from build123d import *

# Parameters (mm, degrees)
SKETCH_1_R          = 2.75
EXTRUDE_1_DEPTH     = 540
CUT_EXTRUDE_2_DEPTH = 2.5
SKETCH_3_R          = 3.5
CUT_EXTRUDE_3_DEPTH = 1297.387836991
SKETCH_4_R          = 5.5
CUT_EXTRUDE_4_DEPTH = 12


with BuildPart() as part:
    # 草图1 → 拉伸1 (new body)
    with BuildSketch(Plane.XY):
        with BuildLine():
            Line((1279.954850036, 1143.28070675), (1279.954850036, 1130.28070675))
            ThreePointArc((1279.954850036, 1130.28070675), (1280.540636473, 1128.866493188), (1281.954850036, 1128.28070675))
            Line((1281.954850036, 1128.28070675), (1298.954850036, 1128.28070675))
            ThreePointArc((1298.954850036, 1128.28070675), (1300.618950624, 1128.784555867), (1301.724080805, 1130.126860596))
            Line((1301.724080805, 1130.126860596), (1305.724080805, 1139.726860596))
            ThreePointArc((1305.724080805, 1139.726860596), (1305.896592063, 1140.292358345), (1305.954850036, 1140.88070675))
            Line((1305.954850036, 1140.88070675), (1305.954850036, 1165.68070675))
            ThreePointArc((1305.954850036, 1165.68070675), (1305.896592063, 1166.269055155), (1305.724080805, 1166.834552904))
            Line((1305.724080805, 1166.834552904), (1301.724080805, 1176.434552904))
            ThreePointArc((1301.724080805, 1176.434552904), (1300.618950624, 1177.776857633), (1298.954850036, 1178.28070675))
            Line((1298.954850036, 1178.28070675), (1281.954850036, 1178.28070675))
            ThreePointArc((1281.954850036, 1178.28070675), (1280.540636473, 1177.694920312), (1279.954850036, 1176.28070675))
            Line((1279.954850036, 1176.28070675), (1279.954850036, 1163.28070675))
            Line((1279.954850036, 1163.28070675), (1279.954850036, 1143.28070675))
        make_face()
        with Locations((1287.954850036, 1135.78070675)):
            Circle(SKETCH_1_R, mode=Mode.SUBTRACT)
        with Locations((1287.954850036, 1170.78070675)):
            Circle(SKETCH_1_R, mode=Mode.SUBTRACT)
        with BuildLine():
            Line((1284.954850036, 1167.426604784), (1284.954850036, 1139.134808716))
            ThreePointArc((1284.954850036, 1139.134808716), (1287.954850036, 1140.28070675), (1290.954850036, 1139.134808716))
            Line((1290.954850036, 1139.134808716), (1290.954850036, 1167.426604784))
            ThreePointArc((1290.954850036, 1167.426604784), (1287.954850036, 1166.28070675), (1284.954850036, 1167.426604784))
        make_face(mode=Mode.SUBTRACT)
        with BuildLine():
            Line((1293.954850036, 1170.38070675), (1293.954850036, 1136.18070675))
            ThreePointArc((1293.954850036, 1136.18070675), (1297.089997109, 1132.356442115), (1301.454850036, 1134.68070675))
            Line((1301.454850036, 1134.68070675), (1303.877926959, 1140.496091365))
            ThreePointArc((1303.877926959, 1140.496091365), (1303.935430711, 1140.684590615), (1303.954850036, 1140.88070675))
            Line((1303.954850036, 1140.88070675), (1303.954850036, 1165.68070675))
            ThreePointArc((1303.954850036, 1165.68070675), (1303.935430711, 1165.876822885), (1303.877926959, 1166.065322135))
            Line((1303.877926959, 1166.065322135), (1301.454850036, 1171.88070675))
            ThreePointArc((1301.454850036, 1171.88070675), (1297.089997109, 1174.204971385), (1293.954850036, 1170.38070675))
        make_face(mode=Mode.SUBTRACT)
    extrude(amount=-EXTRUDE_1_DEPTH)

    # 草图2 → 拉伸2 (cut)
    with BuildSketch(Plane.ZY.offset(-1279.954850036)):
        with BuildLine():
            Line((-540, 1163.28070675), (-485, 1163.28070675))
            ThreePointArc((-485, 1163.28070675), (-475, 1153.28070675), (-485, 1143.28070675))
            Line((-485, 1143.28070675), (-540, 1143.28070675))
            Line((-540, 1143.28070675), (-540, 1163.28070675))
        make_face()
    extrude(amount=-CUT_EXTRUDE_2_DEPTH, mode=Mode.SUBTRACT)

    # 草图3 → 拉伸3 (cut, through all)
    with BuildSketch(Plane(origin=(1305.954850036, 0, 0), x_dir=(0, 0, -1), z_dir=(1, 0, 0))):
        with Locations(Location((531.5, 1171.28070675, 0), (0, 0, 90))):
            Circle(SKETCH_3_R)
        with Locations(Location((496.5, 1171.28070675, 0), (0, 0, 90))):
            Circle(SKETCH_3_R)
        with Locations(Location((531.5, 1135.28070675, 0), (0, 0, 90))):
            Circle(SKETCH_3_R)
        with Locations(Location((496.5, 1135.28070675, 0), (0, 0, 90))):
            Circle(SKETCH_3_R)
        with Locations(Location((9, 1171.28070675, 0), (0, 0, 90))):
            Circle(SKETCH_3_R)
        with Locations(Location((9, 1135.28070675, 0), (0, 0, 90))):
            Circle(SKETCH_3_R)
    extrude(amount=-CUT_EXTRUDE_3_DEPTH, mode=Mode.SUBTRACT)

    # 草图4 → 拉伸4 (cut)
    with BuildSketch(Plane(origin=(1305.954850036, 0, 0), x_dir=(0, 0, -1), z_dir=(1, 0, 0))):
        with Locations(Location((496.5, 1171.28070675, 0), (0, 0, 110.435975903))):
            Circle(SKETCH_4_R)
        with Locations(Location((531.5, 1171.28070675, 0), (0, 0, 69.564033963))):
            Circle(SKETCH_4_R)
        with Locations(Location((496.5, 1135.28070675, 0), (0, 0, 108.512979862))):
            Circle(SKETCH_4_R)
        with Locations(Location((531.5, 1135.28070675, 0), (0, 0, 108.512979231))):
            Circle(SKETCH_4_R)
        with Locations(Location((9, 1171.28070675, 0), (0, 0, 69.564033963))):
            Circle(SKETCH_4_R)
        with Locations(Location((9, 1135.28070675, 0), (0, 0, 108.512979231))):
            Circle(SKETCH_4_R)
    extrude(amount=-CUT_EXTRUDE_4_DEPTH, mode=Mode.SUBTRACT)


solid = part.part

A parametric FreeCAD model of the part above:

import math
import FreeCAD as App
import Part
import Sketcher

V = App.Vector

doc = App.newDocument("Part")
body = doc.addObject("PartDesign::Body", "Body")

# Sketch on XY plane
sketch1 = doc.addObject("Sketcher::SketchObject", "Sketch")
body.addObject(sketch1)
sketch1.AttachmentSupport = (doc.XY_Plane, [""])
sketch1.MapMode = "FlatFace"
sketch1.addGeometry(Part.ArcOfCircle(Part.Circle(V(1281.95485, 1130.280707, 0), V(0, 0, 1), 2), math.radians(180), math.radians(270)), False)
sketch1.addGeometry(Part.LineSegment(V(1281.95485, 1128.280707, 0), V(1298.95485, 1128.280707, 0)), False)
sketch1.addGeometry(Part.ArcOfCircle(Part.Circle(V(1298.95485, 1131.280707, 0), V(0, 0, 1), 3), math.radians(-90), math.radians(-22.619865)), False)
sketch1.addGeometry(Part.LineSegment(V(1301.724081, 1130.126861, 0), V(1305.724081, 1139.726861, 0)), False)
sketch1.addGeometry(Part.ArcOfCircle(Part.Circle(V(1302.95485, 1140.880707, 0), V(0, 0, 1), 3), math.radians(-22.619865), math.radians(0)), False)
sketch1.addGeometry(Part.LineSegment(V(1305.95485, 1140.880707, 0), V(1305.95485, 1165.680707, 0)), False)
sketch1.addGeometry(Part.ArcOfCircle(Part.Circle(V(1302.95485, 1165.680707, 0), V(0, 0, 1), 3), math.radians(0), math.radians(22.619865)), False)
sketch1.addGeometry(Part.LineSegment(V(1305.724081, 1166.834553, 0), V(1301.724081, 1176.434553, 0)), False)
sketch1.addGeometry(Part.ArcOfCircle(Part.Circle(V(1298.95485, 1175.280707, 0), V(0, 0, 1), 3), math.radians(22.619865), math.radians(90)), False)
sketch1.addGeometry(Part.LineSegment(V(1298.95485, 1178.280707, 0), V(1281.95485, 1178.280707, 0)), False)
sketch1.addGeometry(Part.ArcOfCircle(Part.Circle(V(1281.95485, 1176.280707, 0), V(0, 0, 1), 2), math.radians(90), math.radians(180)), False)
sketch1.addGeometry(Part.LineSegment(V(1279.95485, 1176.280707, 0), V(1279.95485, 1130.280707, 0)), False)
sketch1.addGeometry(Part.Circle(V(1287.95485, 1135.780707, 0), V(0, 0, 1), 2.75), False)
sketch1.addGeometry(Part.LineSegment(V(1284.95485, 1139.134809, 0), V(1284.95485, 1167.426605, 0)), False)
sketch1.addGeometry(Part.ArcOfCircle(Part.Circle(V(1287.95485, 1170.780707, 0), V(0, 0, 1), 4.5), math.radians(-131.810315), math.radians(-48.189685)), False)
sketch1.addGeometry(Part.LineSegment(V(1290.95485, 1167.426605, 0), V(1290.95485, 1139.134809, 0)), False)
sketch1.addGeometry(Part.ArcOfCircle(Part.Circle(V(1287.95485, 1135.780707, 0), V(0, 0, 1), 4.5), math.radians(48.189685), math.radians(131.810315)), False)
sketch1.addGeometry(Part.Circle(V(1287.95485, 1170.780707, 0), V(0, 0, 1), 2.75), False)
sketch1.addGeometry(Part.LineSegment(V(1293.95485, 1136.180707, 0), V(1293.95485, 1170.380707, 0)), False)
sketch1.addGeometry(Part.ArcOfCircle(Part.Circle(V(1297.85485, 1170.380707, 0), V(0, 0, 1), 3.9), math.radians(22.619865), math.radians(180)), False)
sketch1.addGeometry(Part.LineSegment(V(1301.45485, 1171.880707, 0), V(1303.877927, 1166.065322, 0)), False)
sketch1.addGeometry(Part.ArcOfCircle(Part.Circle(V(1302.95485, 1165.680707, 0), V(0, 0, 1), 1), math.radians(0), math.radians(22.619865)), False)
sketch1.addGeometry(Part.LineSegment(V(1303.95485, 1165.680707, 0), V(1303.95485, 1140.880707, 0)), False)
sketch1.addGeometry(Part.ArcOfCircle(Part.Circle(V(1302.95485, 1140.880707, 0), V(0, 0, 1), 1), math.radians(-22.619865), math.radians(0)), False)
sketch1.addGeometry(Part.LineSegment(V(1303.877927, 1140.496091, 0), V(1301.45485, 1134.680707, 0)), False)
sketch1.addGeometry(Part.ArcOfCircle(Part.Circle(V(1297.85485, 1136.180707, 0), V(0, 0, 1), 3.9), math.radians(180), math.radians(337.380135)), False)
sketch1.addConstraint(Sketcher.Constraint("Tangent", 0, 2, 1, 1))
sketch1.addConstraint(Sketcher.Constraint("Tangent", 1, 2, 2, 1))
sketch1.addConstraint(Sketcher.Constraint("Tangent", 2, 2, 3, 1))
sketch1.addConstraint(Sketcher.Constraint("Tangent", 3, 2, 4, 1))
sketch1.addConstraint(Sketcher.Constraint("Tangent", 4, 2, 5, 1))
sketch1.addConstraint(Sketcher.Constraint("Tangent", 5, 2, 6, 1))
sketch1.addConstraint(Sketcher.Constraint("Tangent", 6, 2, 7, 1))
sketch1.addConstraint(Sketcher.Constraint("Tangent", 7, 2, 8, 1))
sketch1.addConstraint(Sketcher.Constraint("Tangent", 8, 2, 9, 1))
sketch1.addConstraint(Sketcher.Constraint("Tangent", 9, 2, 10, 1))
sketch1.addConstraint(Sketcher.Constraint("Tangent", 10, 2, 11, 1))
sketch1.addConstraint(Sketcher.Constraint("Tangent", 11, 2, 0, 1))
sketch1.addConstraint(Sketcher.Constraint("Coincident", 13, 2, 14, 1))
sketch1.addConstraint(Sketcher.Constraint("Coincident", 14, 2, 15, 1))
sketch1.addConstraint(Sketcher.Constraint("Coincident", 15, 2, 16, 1))
sketch1.addConstraint(Sketcher.Constraint("Coincident", 16, 2, 13, 1))
sketch1.addConstraint(Sketcher.Constraint("Tangent", 18, 2, 19, 2))
sketch1.addConstraint(Sketcher.Constraint("Tangent", 19, 1, 20, 1))
sketch1.addConstraint(Sketcher.Constraint("Tangent", 20, 2, 21, 2))
sketch1.addConstraint(Sketcher.Constraint("Tangent", 21, 1, 22, 1))
sketch1.addConstraint(Sketcher.Constraint("Tangent", 22, 2, 23, 2))
sketch1.addConstraint(Sketcher.Constraint("Tangent", 23, 1, 24, 1))
sketch1.addConstraint(Sketcher.Constraint("Tangent", 24, 2, 25, 2))
sketch1.addConstraint(Sketcher.Constraint("Tangent", 25, 1, 18, 1))
sketch1.addConstraint(Sketcher.Constraint("Horizontal", 1))
sketch1.addConstraint(Sketcher.Constraint("Vertical", 5))
sketch1.addConstraint(Sketcher.Constraint("Horizontal", 9))
sketch1.addConstraint(Sketcher.Constraint("Vertical", 11))
sketch1.addConstraint(Sketcher.Constraint("Vertical", 13))
sketch1.addConstraint(Sketcher.Constraint("Vertical", 15))
sketch1.addConstraint(Sketcher.Constraint("Vertical", 18))
sketch1.addConstraint(Sketcher.Constraint("Vertical", 22))
sketch1.addConstraint(Sketcher.Constraint("Coincident", 16, 3, 12, 3))
sketch1.addConstraint(Sketcher.Constraint("Coincident", 17, 3, 14, 3))
sketch1.addConstraint(Sketcher.Constraint("Coincident", 21, 3, 6, 3))
sketch1.addConstraint(Sketcher.Constraint("Coincident", 23, 3, 4, 3))
sketch1.addConstraint(Sketcher.Constraint("Equal", 2, 4))
sketch1.addConstraint(Sketcher.Constraint("Equal", 4, 6))
sketch1.addConstraint(Sketcher.Constraint("Equal", 6, 8))
sketch1.addConstraint(Sketcher.Constraint("Equal", 0, 10))
sketch1.addConstraint(Sketcher.Constraint("Equal", 14, 16))
sketch1.addConstraint(Sketcher.Constraint("Equal", 12, 17))
sketch1.addConstraint(Sketcher.Constraint("Equal", 19, 25))
sketch1.addConstraint(Sketcher.Constraint("Parallel", 7, 20))
sketch1.addConstraint(Sketcher.Constraint("Parallel", 3, 24))
sketch1.addConstraint(Sketcher.Constraint("Horizontal", 13, 2, 14, 2))
sketch1.addConstraint(Sketcher.Constraint("Horizontal", 15, 2, 16, 2))
sketch1.addConstraint(Sketcher.Constraint("Vertical", 2, 3, 8, 3))
sketch1.addConstraint(Sketcher.Constraint("Vertical", 3, 2, 6, 2))
sketch1.addConstraint(Sketcher.Constraint("Radius", 0, 2.0))
sketch1.addConstraint(Sketcher.Constraint("Radius", 2, 3.0))
sketch1.addConstraint(Sketcher.Constraint("Radius", 21, 1.0))
sketch1.addConstraint(Sketcher.Constraint("Diameter", 12, 5.5))
sketch1.addConstraint(Sketcher.Constraint("Radius", 14, 4.5))
sketch1.addConstraint(Sketcher.Constraint("Radius", 19, 3.9))
sketch1.addConstraint(Sketcher.Constraint("DistanceX", 1, 1, 1, 2, 17.0))
sketch1.addConstraint(Sketcher.Constraint("DistanceY", 11, 2, 11, 1, 46.0))
sketch1.addConstraint(Sketcher.Constraint("DistanceY", 5, 1, 5, 2, 24.8))
sketch1.addConstraint(Sketcher.Constraint("DistanceY", 18, 1, 18, 2, 34.2))
sketch1.addConstraint(Sketcher.Constraint("DistanceX", 2, 3, 4, 3, 4.0))
sketch1.addConstraint(Sketcher.Constraint("DistanceX", 0, 3, 12, 3, 6.0))
sketch1.addConstraint(Sketcher.Constraint("DistanceY", 12, 3, 14, 3, 35.0))
sketch1.addConstraint(Sketcher.Constraint("DistanceX", 13, 2, 14, 3, 3.0))
sketch1.addConstraint(Sketcher.Constraint("DistanceY", 0, 3, 12, 3, 5.5))
sketch1.addConstraint(Sketcher.Constraint("DistanceX", -1, 1, 0, 3, 1281.95485))
sketch1.addConstraint(Sketcher.Constraint("DistanceY", -1, 1, 2, 2, 1130.126861))
pad1 = doc.addObject("PartDesign::Pad", "Pad")
body.addObject(pad1)
pad1.Profile = sketch1
pad1.Length = 540
pad1.Reversed = True

# Sketch on YZ plane
sketch2 = doc.addObject("Sketcher::SketchObject", "Sketch001")
body.addObject(sketch2)
sketch2.AttachmentSupport = (doc.YZ_Plane, [""])
sketch2.MapMode = "FlatFace"
sketch2.AttachmentOffset = App.Placement(V(0, 0, 1279.95485), App.Rotation())
sketch2.addGeometry(Part.LineSegment(V(1163.280707, -485, 0), V(1163.280707, -540, 0)), False)
sketch2.addGeometry(Part.LineSegment(V(1163.280707, -540, 0), V(1143.280707, -540, 0)), False)
sketch2.addGeometry(Part.LineSegment(V(1143.280707, -540, 0), V(1143.280707, -485, 0)), False)
sketch2.addGeometry(Part.ArcOfCircle(Part.Circle(V(1153.280707, -485, 0), V(0, 0, 1), 10), math.radians(0), math.radians(180)), False)
sketch2.addConstraint(Sketcher.Constraint("Coincident", 0, 2, 1, 1))
sketch2.addConstraint(Sketcher.Constraint("Coincident", 1, 2, 2, 1))
sketch2.addConstraint(Sketcher.Constraint("Tangent", 2, 2, 3, 2))
sketch2.addConstraint(Sketcher.Constraint("Tangent", 3, 1, 0, 1))
sketch2.addConstraint(Sketcher.Constraint("Vertical", 0))
sketch2.addConstraint(Sketcher.Constraint("Horizontal", 1))
sketch2.addConstraint(Sketcher.Constraint("Vertical", 2))
sketch2.addConstraint(Sketcher.Constraint("Radius", 3, 10.0))
sketch2.addConstraint(Sketcher.Constraint("DistanceY", 0, 2, 0, 1, 55.0))
sketch2.addConstraint(Sketcher.Constraint("DistanceY", 3, 3, -1, 1, 485.0))
sketch2.addConstraint(Sketcher.Constraint("DistanceX", -1, 1, 3, 3, 1153.280707))
pocket1 = doc.addObject("PartDesign::Pocket", "Pocket")
body.addObject(pocket1)
pocket1.Profile = sketch2
pocket1.Length = 2.5
pocket1.Reversed = True

# Sketch on YZ plane
sketch3 = doc.addObject("Sketcher::SketchObject", "Sketch002")
body.addObject(sketch3)
sketch3.AttachmentSupport = (doc.YZ_Plane, [""])
sketch3.MapMode = "FlatFace"
sketch3.AttachmentOffset = App.Placement(V(0, 0, 1305.95485), App.Rotation())
sketch3.addGeometry(Part.Circle(V(1171.280707, -531.5, 0), V(0, 0, 1), 3.5), False)
sketch3.addGeometry(Part.Circle(V(1171.280707, -496.5, 0), V(0, 0, 1), 3.5), False)
sketch3.addGeometry(Part.Circle(V(1135.280707, -531.5, 0), V(0, 0, 1), 3.5), False)
sketch3.addGeometry(Part.Circle(V(1135.280707, -496.5, 0), V(0, 0, 1), 3.5), False)
sketch3.addGeometry(Part.Circle(V(1171.280707, -9, 0), V(0, 0, 1), 3.5), False)
sketch3.addGeometry(Part.Circle(V(1135.280707, -9, 0), V(0, 0, 1), 3.5), False)
sketch3.addConstraint(Sketcher.Constraint("Equal", 0, 1))
sketch3.addConstraint(Sketcher.Constraint("Equal", 1, 2))
sketch3.addConstraint(Sketcher.Constraint("Equal", 2, 3))
sketch3.addConstraint(Sketcher.Constraint("Equal", 3, 4))
sketch3.addConstraint(Sketcher.Constraint("Equal", 4, 5))
sketch3.addConstraint(Sketcher.Constraint("Horizontal", 0, 3, 2, 3))
sketch3.addConstraint(Sketcher.Constraint("Horizontal", 1, 3, 3, 3))
sketch3.addConstraint(Sketcher.Constraint("Horizontal", 4, 3, 5, 3))
sketch3.addConstraint(Sketcher.Constraint("Vertical", 0, 3, 1, 3))
sketch3.addConstraint(Sketcher.Constraint("Vertical", 2, 3, 3, 3))
sketch3.addConstraint(Sketcher.Constraint("Vertical", 1, 3, 4, 3))
sketch3.addConstraint(Sketcher.Constraint("Vertical", 3, 3, 5, 3))
sketch3.addConstraint(Sketcher.Constraint("Diameter", 0, 7.0))
sketch3.addConstraint(Sketcher.Constraint("DistanceY", 4, 3, -1, 1, 9.0))
sketch3.addConstraint(Sketcher.Constraint("DistanceY", 0, 3, 1, 3, 35.0))
sketch3.addConstraint(Sketcher.Constraint("DistanceX", 2, 3, 0, 3, 36.0))
sketch3.addConstraint(Sketcher.Constraint("DistanceY", 0, 3, -1, 1, 531.5))
sketch3.addConstraint(Sketcher.Constraint("DistanceX", -1, 1, 0, 3, 1171.280707))
pocket2 = doc.addObject("PartDesign::Pocket", "Pocket001")
body.addObject(pocket2)
pocket2.Profile = sketch3
pocket2.Type = "ThroughAll"

# Sketch on YZ plane
sketch4 = doc.addObject("Sketcher::SketchObject", "Sketch003")
body.addObject(sketch4)
sketch4.AttachmentSupport = (doc.YZ_Plane, [""])
sketch4.MapMode = "FlatFace"
sketch4.AttachmentOffset = App.Placement(V(0, 0, 1305.95485), App.Rotation())
sketch4.addGeometry(Part.Circle(V(1171.280707, -496.5, 0), V(0, 0, 1), 5.5), False)
sketch4.addGeometry(Part.Circle(V(1171.280707, -531.5, 0), V(0, 0, 1), 5.5), False)
sketch4.addGeometry(Part.Circle(V(1135.280707, -496.5, 0), V(0, 0, 1), 5.5), False)
sketch4.addGeometry(Part.Circle(V(1135.280707, -531.5, 0), V(0, 0, 1), 5.5), False)
sketch4.addGeometry(Part.Circle(V(1171.280707, -9, 0), V(0, 0, 1), 5.5), False)
sketch4.addGeometry(Part.Circle(V(1135.280707, -9, 0), V(0, 0, 1), 5.5), False)
sketch4.addConstraint(Sketcher.Constraint("Equal", 0, 1))
sketch4.addConstraint(Sketcher.Constraint("Equal", 1, 2))
sketch4.addConstraint(Sketcher.Constraint("Equal", 2, 3))
sketch4.addConstraint(Sketcher.Constraint("Equal", 3, 4))
sketch4.addConstraint(Sketcher.Constraint("Equal", 4, 5))
sketch4.addConstraint(Sketcher.Constraint("Horizontal", 0, 3, 2, 3))
sketch4.addConstraint(Sketcher.Constraint("Horizontal", 1, 3, 3, 3))
sketch4.addConstraint(Sketcher.Constraint("Horizontal", 4, 3, 5, 3))
sketch4.addConstraint(Sketcher.Constraint("Vertical", 0, 3, 1, 3))
sketch4.addConstraint(Sketcher.Constraint("Vertical", 2, 3, 3, 3))
sketch4.addConstraint(Sketcher.Constraint("Vertical", 1, 3, 4, 3))
sketch4.addConstraint(Sketcher.Constraint("Vertical", 3, 3, 5, 3))
sketch4.addConstraint(Sketcher.Constraint("Diameter", 0, 11.0))
sketch4.addConstraint(Sketcher.Constraint("DistanceY", 4, 3, -1, 1, 9.0))
sketch4.addConstraint(Sketcher.Constraint("DistanceY", 1, 3, 0, 3, 35.0))
sketch4.addConstraint(Sketcher.Constraint("DistanceX", 2, 3, 0, 3, 36.0))
sketch4.addConstraint(Sketcher.Constraint("DistanceY", 0, 3, -1, 1, 496.5))
sketch4.addConstraint(Sketcher.Constraint("DistanceX", -1, 1, 0, 3, 1171.280707))
pocket3 = doc.addObject("PartDesign::Pocket", "Pocket002")
body.addObject(pocket3)
pocket3.Profile = sketch4
pocket3.Length = 12

doc.recompute()
